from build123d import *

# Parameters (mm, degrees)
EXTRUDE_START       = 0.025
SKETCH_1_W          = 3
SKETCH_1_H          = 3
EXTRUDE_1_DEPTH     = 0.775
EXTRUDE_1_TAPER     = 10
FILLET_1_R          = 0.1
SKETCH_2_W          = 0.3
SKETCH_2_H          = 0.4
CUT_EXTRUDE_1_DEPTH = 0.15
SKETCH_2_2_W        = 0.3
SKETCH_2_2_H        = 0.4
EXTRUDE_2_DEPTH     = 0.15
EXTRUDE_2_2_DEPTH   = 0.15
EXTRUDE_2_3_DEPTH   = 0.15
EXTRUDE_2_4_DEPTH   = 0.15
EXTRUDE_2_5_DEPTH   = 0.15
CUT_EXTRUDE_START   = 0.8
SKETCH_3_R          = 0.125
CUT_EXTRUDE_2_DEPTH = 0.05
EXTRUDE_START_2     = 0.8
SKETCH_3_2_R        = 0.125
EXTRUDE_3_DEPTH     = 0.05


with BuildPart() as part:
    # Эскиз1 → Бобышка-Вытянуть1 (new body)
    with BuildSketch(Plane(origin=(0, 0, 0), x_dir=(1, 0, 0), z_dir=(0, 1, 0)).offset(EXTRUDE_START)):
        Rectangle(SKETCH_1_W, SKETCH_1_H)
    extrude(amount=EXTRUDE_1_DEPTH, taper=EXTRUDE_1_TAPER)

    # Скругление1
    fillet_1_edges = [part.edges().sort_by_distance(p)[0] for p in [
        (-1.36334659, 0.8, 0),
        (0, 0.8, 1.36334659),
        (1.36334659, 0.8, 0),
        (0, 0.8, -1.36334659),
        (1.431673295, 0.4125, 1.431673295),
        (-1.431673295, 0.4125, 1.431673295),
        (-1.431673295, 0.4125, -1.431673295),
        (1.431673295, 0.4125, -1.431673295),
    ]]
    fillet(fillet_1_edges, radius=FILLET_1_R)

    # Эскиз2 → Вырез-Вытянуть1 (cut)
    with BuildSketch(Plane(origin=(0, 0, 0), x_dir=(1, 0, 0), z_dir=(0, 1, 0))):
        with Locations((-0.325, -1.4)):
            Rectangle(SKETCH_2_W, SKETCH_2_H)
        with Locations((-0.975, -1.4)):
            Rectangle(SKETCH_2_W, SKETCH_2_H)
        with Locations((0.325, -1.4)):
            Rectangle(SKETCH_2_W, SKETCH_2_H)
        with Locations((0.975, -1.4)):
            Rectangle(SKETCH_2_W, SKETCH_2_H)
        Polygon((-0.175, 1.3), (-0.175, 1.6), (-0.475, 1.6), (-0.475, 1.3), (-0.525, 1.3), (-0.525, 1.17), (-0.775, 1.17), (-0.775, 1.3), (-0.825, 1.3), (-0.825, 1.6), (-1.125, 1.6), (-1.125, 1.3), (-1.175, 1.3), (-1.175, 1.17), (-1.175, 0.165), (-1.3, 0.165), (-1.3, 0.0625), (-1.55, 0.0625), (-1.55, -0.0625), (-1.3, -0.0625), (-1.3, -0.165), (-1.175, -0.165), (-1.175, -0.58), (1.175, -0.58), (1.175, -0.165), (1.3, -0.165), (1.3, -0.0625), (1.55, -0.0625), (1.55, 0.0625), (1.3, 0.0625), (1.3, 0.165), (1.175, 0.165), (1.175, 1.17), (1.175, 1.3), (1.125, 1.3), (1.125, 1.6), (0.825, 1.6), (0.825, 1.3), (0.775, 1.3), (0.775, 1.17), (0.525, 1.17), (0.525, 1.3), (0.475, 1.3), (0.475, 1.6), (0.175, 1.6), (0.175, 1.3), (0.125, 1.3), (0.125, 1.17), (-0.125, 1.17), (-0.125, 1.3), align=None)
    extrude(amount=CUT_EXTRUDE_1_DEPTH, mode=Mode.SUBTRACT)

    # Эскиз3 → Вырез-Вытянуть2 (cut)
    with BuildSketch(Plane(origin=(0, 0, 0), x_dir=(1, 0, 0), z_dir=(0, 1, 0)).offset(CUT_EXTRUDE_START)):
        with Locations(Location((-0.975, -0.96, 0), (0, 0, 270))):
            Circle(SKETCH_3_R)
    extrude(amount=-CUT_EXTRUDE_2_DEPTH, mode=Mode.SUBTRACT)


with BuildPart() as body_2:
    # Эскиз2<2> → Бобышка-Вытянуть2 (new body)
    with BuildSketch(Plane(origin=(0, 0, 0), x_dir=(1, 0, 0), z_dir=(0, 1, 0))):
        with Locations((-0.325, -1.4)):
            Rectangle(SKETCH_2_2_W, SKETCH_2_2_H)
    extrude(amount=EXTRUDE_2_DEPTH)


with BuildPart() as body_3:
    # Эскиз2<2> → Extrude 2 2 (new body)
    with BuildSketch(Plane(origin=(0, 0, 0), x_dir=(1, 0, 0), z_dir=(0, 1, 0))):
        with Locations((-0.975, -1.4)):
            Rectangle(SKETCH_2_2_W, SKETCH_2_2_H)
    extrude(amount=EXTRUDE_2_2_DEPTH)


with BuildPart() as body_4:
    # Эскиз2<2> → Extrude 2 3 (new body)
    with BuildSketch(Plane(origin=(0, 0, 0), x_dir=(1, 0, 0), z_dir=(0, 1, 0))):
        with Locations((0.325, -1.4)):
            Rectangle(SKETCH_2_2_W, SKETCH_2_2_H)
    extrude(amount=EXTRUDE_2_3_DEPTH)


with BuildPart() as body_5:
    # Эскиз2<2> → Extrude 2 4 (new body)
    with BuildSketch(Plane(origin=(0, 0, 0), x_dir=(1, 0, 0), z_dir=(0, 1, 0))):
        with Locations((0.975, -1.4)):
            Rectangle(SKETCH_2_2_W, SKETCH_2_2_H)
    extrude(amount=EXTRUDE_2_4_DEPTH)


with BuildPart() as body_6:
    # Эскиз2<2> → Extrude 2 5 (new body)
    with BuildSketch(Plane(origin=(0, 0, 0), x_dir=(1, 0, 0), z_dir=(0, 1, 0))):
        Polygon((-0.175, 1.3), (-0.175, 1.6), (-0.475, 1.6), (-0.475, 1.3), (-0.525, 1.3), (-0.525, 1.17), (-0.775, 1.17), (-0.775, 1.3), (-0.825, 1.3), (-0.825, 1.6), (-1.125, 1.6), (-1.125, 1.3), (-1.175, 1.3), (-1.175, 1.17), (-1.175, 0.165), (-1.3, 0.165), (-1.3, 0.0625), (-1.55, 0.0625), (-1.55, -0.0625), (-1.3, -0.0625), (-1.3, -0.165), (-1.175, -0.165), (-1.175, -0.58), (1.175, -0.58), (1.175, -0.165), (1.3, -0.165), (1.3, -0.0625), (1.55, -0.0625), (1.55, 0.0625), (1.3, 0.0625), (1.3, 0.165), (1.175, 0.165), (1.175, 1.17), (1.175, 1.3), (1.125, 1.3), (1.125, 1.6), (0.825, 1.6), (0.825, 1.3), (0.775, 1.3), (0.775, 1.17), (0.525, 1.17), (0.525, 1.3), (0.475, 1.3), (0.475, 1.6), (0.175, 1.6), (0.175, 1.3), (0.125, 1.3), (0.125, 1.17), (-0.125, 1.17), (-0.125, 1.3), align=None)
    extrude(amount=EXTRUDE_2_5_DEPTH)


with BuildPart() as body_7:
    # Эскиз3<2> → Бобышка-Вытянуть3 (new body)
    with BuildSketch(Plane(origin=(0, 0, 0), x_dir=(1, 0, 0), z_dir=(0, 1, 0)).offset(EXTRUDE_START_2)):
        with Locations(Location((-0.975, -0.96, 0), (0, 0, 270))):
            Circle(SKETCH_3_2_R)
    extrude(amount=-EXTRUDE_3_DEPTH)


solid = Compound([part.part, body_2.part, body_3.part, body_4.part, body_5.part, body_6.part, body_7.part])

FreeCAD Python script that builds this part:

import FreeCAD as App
import Part
import Sketcher
from FreeCAD import Vector
Q = App.Units.Quantity


def edges_at(feature, points):
    """Names of the edges that pass closest to the given points."""
    edges = feature.Shape.Edges
    near = lambda p: min(range(len(edges)), key=lambda i: edges[i].distToShape(Part.Vertex(*p))[0])
    return sorted({f"Edge{near(p) + 1}" for p in points})

doc = App.newDocument("Part")
params = doc.addObject("Spreadsheet::Sheet", "Params")
for row, (alias, value) in enumerate([
    ("sketch1_width", "3 mm"),
    ("pad1_length", "0.775 mm"),
    ("pad1_taper", "-10 deg"),
    ("fillet_radius", "0.1 mm"),
    ("sketch2_width", "0.3 mm"),
    ("sketch2_height", "0.4 mm"),
    ("sketch2_width2", "0.05 mm"),
    ("sketch2_width3", "0.25 mm"),
    ("sketch2_height2", "0.13 mm"),
    ("pocket1_length", "0.15 mm"),
    ("sketch3_diameter", "0.25 mm"),
    ("pocket2_length", "0.05 mm"),
    ("sketch4_width", "0.3 mm"),
    ("sketch4_height", "0.4 mm"),
    ("pad2_length", "0.15 mm"),
    ("sketch5_width", "0.3 mm"),
    ("sketch5_height", "0.4 mm"),
    ("pad3_length", "0.15 mm"),
    ("sketch6_width", "0.3 mm"),
    ("sketch6_height", "0.4 mm"),
    ("pad4_length", "0.15 mm"),
    ("sketch7_width", "0.3 mm"),
    ("sketch7_height", "0.4 mm"),
    ("pad5_length", "0.15 mm"),
    ("sketch8_width", "0.3 mm"),
    ("sketch8_width2", "0.05 mm"),
    ("sketch8_height", "0.13 mm"),
    ("pad6_length", "0.15 mm"),
    ("sketch9_diameter", "0.25 mm"),
    ("pad7_length", "0.05 mm"),
], start=1):
    params.set(f"A{row}", alias)
    params.set(f"B{row}", "=" + value)
    params.setAlias(f"B{row}", alias)

body = doc.addObject("PartDesign::Body", "Body")

# Sketch on XZ plane
sketch1 = doc.addObject("Sketcher::SketchObject", "Sketch")
body.addObject(sketch1)
sketch1.AttachmentSupport = (doc.XZ_Plane, [""])
sketch1.MapMode = "FlatFace"
sketch1.AttachmentOffset = App.Placement(Vector(0, 0, -0.025), App.Rotation())
sketch1.addGeometry(Part.LineSegment(Vector(-1.5, -1.5, 0), Vector(-1.5, 1.5, 0)), False)
sketch1.addGeometry(Part.LineSegment(Vector(-1.5, 1.5, 0), Vector(1.5, 1.5, 0)), False)
sketch1.addGeometry(Part.LineSegment(Vector(1.5, 1.5, 0), Vector(1.5, -1.5, 0)), False)
sketch1.addGeometry(Part.LineSegment(Vector(1.5, -1.5, 0), Vector(-1.5, -1.5, 0)), False)
sketch1.addConstraint(Sketcher.Constraint("Coincident", 0, 2, 1, 1))
sketch1.addConstraint(Sketcher.Constraint("Coincident", 1, 2, 2, 1))
sketch1.addConstraint(Sketcher.Constraint("Coincident", 2, 2, 3, 1))
sketch1.addConstraint(Sketcher.Constraint("Coincident", 3, 2, 0, 1))
sketch1.addConstraint(Sketcher.Constraint("Vertical", 0))
sketch1.addConstraint(Sketcher.Constraint("Horizontal", 1))
sketch1.addConstraint(Sketcher.Constraint("Vertical", 2))
sketch1.addConstraint(Sketcher.Constraint("Horizontal", 3))
sketch1.addConstraint(Sketcher.Constraint("Symmetric", 0, 2, 2, 2, -1, 1))
sketch1.addConstraint(Sketcher.Constraint("Equal", 3, 0))
sketch1.addConstraint(Sketcher.Constraint("DistanceX", 1, 1, 1, 2, Q("3 mm")))
sketch1.setExpression("Constraints[10]", "Params.sketch1_width")
pad1 = doc.addObject("PartDesign::Pad", "Pad")
body.addObject(pad1)
pad1.Profile = sketch1
pad1.setExpression("Length", "Params.pad1_length")
pad1.Reversed = True
pad1.setExpression("TaperAngle", "Params.pad1_taper")
doc.recompute()

fillet = doc.addObject("PartDesign::Fillet", "Fillet")
body.addObject(fillet)
fillet.Base = (pad1, edges_at(pad1, [
    (-1.363, 0.8, 0),
    (0, 0.8, 1.363),
    (1.363, 0.8, 0),
    (0, 0.8, -1.363),
    (1.432, 0.412, 1.432),
    (-1.432, 0.412, 1.432),
    (-1.432, 0.412, -1.432),
    (1.432, 0.412, -1.432),
]))
fillet.setExpression("Radius", "Params.fillet_radius")

# Sketch on XZ plane
sketch2 = doc.addObject("Sketcher::SketchObject", "Sketch001")
body.addObject(sketch2)
sketch2.AttachmentSupport = (doc.XZ_Plane, [""])
sketch2.MapMode = "FlatFace"
sketch2.addGeometry(Part.LineSegment(Vector(-0.475, 1.2, 0), Vector(-0.475, 1.6, 0)), False)
sketch2.addGeometry(Part.LineSegment(Vector(-0.475, 1.6, 0), Vector(-0.175, 1.6, 0)), False)
sketch2.addGeometry(Part.LineSegment(Vector(-0.175, 1.6, 0), Vector(-0.175, 1.2, 0)), False)
sketch2.addGeometry(Part.LineSegment(Vector(-0.175, 1.2, 0), Vector(-0.475, 1.2, 0)), False)
sketch2.addGeometry(Part.LineSegment(Vector(-1.125, 1.2, 0), Vector(-1.125, 1.6, 0)), False)
sketch2.addGeometry(Part.LineSegment(Vector(-1.125, 1.6, 0), Vector(-0.825, 1.6, 0)), False)
sketch2.addGeometry(Part.LineSegment(Vector(-0.825, 1.6, 0), Vector(-0.825, 1.2, 0)), False)
sketch2.addGeometry(Part.LineSegment(Vector(-0.825, 1.2, 0), Vector(-1.125, 1.2, 0)), False)
sketch2.addGeometry(Part.LineSegment(Vector(0.175, 1.2, 0), Vector(0.175, 1.6, 0)), False)
sketch2.addGeometry(Part.LineSegment(Vector(0.175, 1.6, 0), Vector(0.475, 1.6, 0)), False)
sketch2.addGeometry(Part.LineSegment(Vector(0.475, 1.6, 0), Vector(0.475, 1.2, 0)), False)
sketch2.addGeometry(Part.LineSegment(Vector(0.475, 1.2, 0), Vector(0.175, 1.2, 0)), False)
sketch2.addGeometry(Part.LineSegment(Vector(0.825, 1.2, 0), Vector(0.825, 1.6, 0)), False)
sketch2.addGeometry(Part.LineSegment(Vector(0.825, 1.6, 0), Vector(1.125, 1.6, 0)), False)
sketch2.addGeometry(Part.LineSegment(Vector(1.125, 1.6, 0), Vector(1.125, 1.2, 0)), False)
sketch2.addGeometry(Part.LineSegment(Vector(1.125, 1.2, 0), Vector(0.825, 1.2, 0)), False)
sketch2.addGeometry(Part.LineSegment(Vector(-0.175, -1.3, 0), Vector(-0.175, -1.6, 0)), False)
sketch2.addGeometry(Part.LineSegment(Vector(-0.175, -1.6, 0), Vector(-0.475, -1.6, 0)), False)
sketch2.addGeometry(Part.LineSegment(Vector(-0.475, -1.6, 0), Vector(-0.475, -1.3, 0)), False)
sketch2.addGeometry(Part.LineSegment(Vector(-0.475, -1.3, 0), Vector(-0.525, -1.3, 0)), False)
sketch2.addGeometry(Part.LineSegment(Vector(-0.525, -1.3, 0), Vector(-0.525, -1.17, 0)), False)
sketch2.addGeometry(Part.LineSegment(Vector(-0.525, -1.17, 0), Vector(-0.775, -1.17, 0)), False)
sketch2.addGeometry(Part.LineSegment(Vector(-0.775, -1.17, 0), Vector(-0.775, -1.3, 0)), False)
sketch2.addGeometry(Part.LineSegment(Vector(-0.775, -1.3, 0), Vector(-0.825, -1.3, 0)), False)
sketch2.addGeometry(Part.LineSegment(Vector(-0.825, -1.3, 0), Vector(-0.825, -1.6, 0)), False)
sketch2.addGeometry(Part.LineSegment(Vector(-0.825, -1.6, 0), Vector(-1.125, -1.6, 0)), False)
sketch2.addGeometry(Part.LineSegment(Vector(-1.125, -1.6, 0), Vector(-1.125, -1.3, 0)), False)
sketch2.addGeometry(Part.LineSegment(Vector(-1.125, -1.3, 0), Vector(-1.175, -1.3, 0)), False)
sketch2.addGeometry(Part.LineSegment(Vector(-1.175, -1.3, 0), Vector(-1.175, -0.165, 0)), False)
sketch2.addGeometry(Part.LineSegment(Vector(-1.175, -0.165, 0), Vector(-1.3, -0.165, 0)), False)
sketch2.addGeometry(Part.LineSegment(Vector(-1.3, -0.165, 0), Vector(-1.3, -0.062, 0)), False)
sketch2.addGeometry(Part.LineSegment(Vector(-1.3, -0.062, 0), Vector(-1.55, -0.062, 0)), False)
sketch2.addGeometry(Part.LineSegment(Vector(-1.55, -0.062, 0), Vector(-1.55, 0.062, 0)), False)
sketch2.addGeometry(Part.LineSegment(Vector(-1.55, 0.062, 0), Vector(-1.3, 0.062, 0)), False)
sketch2.addGeometry(Part.LineSegment(Vector(-1.3, 0.062, 0), Vector(-1.3, 0.165, 0)), False)
sketch2.addGeometry(Part.LineSegment(Vector(-1.3, 0.165, 0), Vector(-1.175, 0.165, 0)), False)
sketch2.addGeometry(Part.LineSegment(Vector(-1.175, 0.165, 0), Vector(-1.175, 0.58, 0)), False)
sketch2.addGeometry(Part.LineSegment(Vector(-1.175, 0.58, 0), Vector(1.175, 0.58, 0)), False)
sketch2.addGeometry(Part.LineSegment(Vector(1.175, 0.58, 0), Vector(1.175, 0.165, 0)), False)
sketch2.addGeometry(Part.LineSegment(Vector(1.175, 0.165, 0), Vector(1.3, 0.165, 0)), False)
sketch2.addGeometry(Part.LineSegment(Vector(1.3, 0.165, 0), Vector(1.3, 0.062, 0)), False)
sketch2.addGeometry(Part.LineSegment(Vector(1.3, 0.062, 0), Vector(1.55, 0.062, 0)), False)
sketch2.addGeometry(Part.LineSegment(Vector(1.55, 0.062, 0), Vector(1.55, -0.062, 0)), False)
sketch2.addGeometry(Part.LineSegment(Vector(1.55, -0.062, 0), Vector(1.3, -0.062, 0)), False)
sketch2.addGeometry(Part.LineSegment(Vector(1.3, -0.062, 0), Vector(1.3, -0.165, 0)), False)
sketch2.addGeometry(Part.LineSegment(Vector(1.3, -0.165, 0), Vector(1.175, -0.165, 0)), False)
sketch2.addGeometry(Part.LineSegment(Vector(1.175, -0.165, 0), Vector(1.175, -1.3, 0)), False)
sketch2.addGeometry(Part.LineSegment(Vector(1.175, -1.3, 0), Vector(1.125, -1.3, 0)), False)
sketch2.addGeometry(Part.LineSegment(Vector(1.125, -1.3, 0), Vector(1.125, -1.6, 0)), False)
sketch2.addGeometry(Part.LineSegment(Vector(1.125, -1.6, 0), Vector(0.825, -1.6, 0)), False)
sketch2.addGeometry(Part.LineSegment(Vector(0.825, -1.6, 0), Vector(0.825, -1.3, 0)), False)
sketch2.addGeometry(Part.LineSegment(Vector(0.825, -1.3, 0), Vector(0.775, -1.3, 0)), False)
sketch2.addGeometry(Part.LineSegment(Vector(0.775, -1.3, 0), Vector(0.775, -1.17, 0)), False)
sketch2.addGeometry(Part.LineSegment(Vector(0.775, -1.17, 0), Vector(0.525, -1.17, 0)), False)
sketch2.addGeometry(Part.LineSegment(Vector(0.525, -1.17, 0), Vector(0.525, -1.3, 0)), False)
sketch2.addGeometry(Part.LineSegment(Vector(0.525, -1.3, 0), Vector(0.475, -1.3, 0)), False)
sketch2.addGeometry(Part.LineSegment(Vector(0.475, -1.3, 0), Vector(0.475, -1.6, 0)), False)
sketch2.addGeometry(Part.LineSegment(Vector(0.475, -1.6, 0), Vector(0.175, -1.6, 0)), False)
sketch2.addGeometry(Part.LineSegment(Vector(0.175, -1.6, 0), Vector(0.175, -1.3, 0)), False)
sketch2.addGeometry(Part.LineSegment(Vector(0.175, -1.3, 0), Vector(0.125, -1.3, 0)), False)
sketch2.addGeometry(Part.LineSegment(Vector(0.125, -1.3, 0), Vector(0.125, -1.17, 0)), False)
sketch2.addGeometry(Part.LineSegment(Vector(0.125, -1.17, 0), Vector(-0.125, -1.17, 0)), False)
sketch2.addGeometry(Part.LineSegment(Vector(-0.125, -1.17, 0), Vector(-0.125, -1.3, 0)), False)
sketch2.addGeometry(Part.LineSegment(Vector(-0.125, -1.3, 0), Vector(-0.175, -1.3, 0)), False)
sketch2.addConstraint(Sketcher.Constraint("Coincident", 0, 2, 1, 1))
sketch2.addConstraint(Sketcher.Constraint("Coincident", 1, 2, 2, 1))
sketch2.addConstraint(Sketcher.Constraint("Coincident", 2, 2, 3, 1))
sketch2.addConstraint(Sketcher.Constraint("Coincident", 3, 2, 0, 1))
sketch2.addConstraint(Sketcher.Constraint("Coincident", 4, 2, 5, 1))
sketch2.addConstraint(Sketcher.Constraint("Coincident", 5, 2, 6, 1))
sketch2.addConstraint(Sketcher.Constraint("Coincident", 6, 2, 7, 1))
sketch2.addConstraint(Sketcher.Constraint("Coincident", 7, 2, 4, 1))
sketch2.addConstraint(Sketcher.Constraint("Coincident", 8, 2, 9, 1))
sketch2.addConstraint(Sketcher.Constraint("Coincident", 9, 2, 10, 1))
sketch2.addConstraint(Sketcher.Constraint("Coincident", 10, 2, 11, 1))
sketch2.addConstraint(Sketcher.Constraint("Coincident", 11, 2, 8, 1))
sketch2.addConstraint(Sketcher.Constraint("Coincident", 12, 2, 13, 1))
sketch2.addConstraint(Sketcher.Constraint("Coincident", 13, 2, 14, 1))
sketch2.addConstraint(Sketcher.Constraint("Coincident", 14, 2, 15, 1))
sketch2.addConstraint(Sketcher.Constraint("Coincident", 15, 2, 12, 1))
sketch2.addConstraint(Sketcher.Constraint("Coincident", 16, 2, 17, 1))
sketch2.addConstraint(Sketcher.Constraint("Coincident", 17, 2, 18, 1))
sketch2.addConstraint(Sketcher.Constraint("Coincident", 18, 2, 19, 1))
sketch2.addConstraint(Sketcher.Constraint("Coincident", 19, 2, 20, 1))
sketch2.addConstraint(Sketcher.Constraint("Coincident", 20, 2, 21, 1))
sketch2.addConstraint(Sketcher.Constraint("Coincident", 21, 2, 22, 1))
sketch2.addConstraint(Sketcher.Constraint("Coincident", 22, 2, 23, 1))
sketch2.addConstraint(Sketcher.Constraint("Coincident", 23, 2, 24, 1))
sketch2.addConstraint(Sketcher.Constraint("Coincident", 24, 2, 25, 1))
sketch2.addConstraint(Sketcher.Constraint("Coincident", 25, 2, 26, 1))
sketch2.addConstraint(Sketcher.Constraint("Coincident", 26, 2, 27, 1))
sketch2.addConstraint(Sketcher.Constraint("Coincident", 27, 2, 28, 1))
sketch2.addConstraint(Sketcher.Constraint("Coincident", 28, 2, 29, 1))
sketch2.addConstraint(Sketcher.Constraint("Coincident", 29, 2, 30, 1))
sketch2.addConstraint(Sketcher.Constraint("Coincident", 30, 2, 31, 1))
sketch2.addConstraint(Sketcher.Constraint("Coincident", 31, 2, 32, 1))
sketch2.addConstraint(Sketcher.Constraint("Coincident", 32, 2, 33, 1))
sketch2.addConstraint(Sketcher.Constraint("Coincident", 33, 2, 34, 1))
sketch2.addConstraint(Sketcher.Constraint("Coincident", 34, 2, 35, 1))
sketch2.addConstraint(Sketcher.Constraint("Coincident", 35, 2, 36, 1))
sketch2.addConstraint(Sketcher.Constraint("Coincident", 36, 2, 37, 1))
sketch2.addConstraint(Sketcher.Constraint("Coincident", 37, 2, 38, 1))
sketch2.addConstraint(Sketcher.Constraint("Coincident", 38, 2, 39, 1))
sketch2.addConstraint(Sketcher.Constraint("Coincident", 39, 2, 40, 1))
sketch2.addConstraint(Sketcher.Constraint("Coincident", 40, 2, 41, 1))
sketch2.addConstraint(Sketcher.Constraint("Coincident", 41, 2, 42, 1))
sketch2.addConstraint(Sketcher.Constraint("Coincident", 42, 2, 43, 1))
sketch2.addConstraint(Sketcher.Constraint("Coincident", 43, 2, 44, 1))
sketch2.addConstraint(Sketcher.Constraint("Coincident", 44, 2, 45, 1))
sketch2.addConstraint(Sketcher.Constraint("Coincident", 45, 2, 46, 1))
sketch2.addConstraint(Sketcher.Constraint("Coincident", 46, 2, 47, 1))
sketch2.addConstraint(Sketcher.Constraint("Coincident", 47, 2, 48, 1))
sketch2.addConstraint(Sketcher.Constraint("Coincident", 48, 2, 49, 1))
sketch2.addConstraint(Sketcher.Constraint("Coincident", 49, 2, 50, 1))
sketch2.addConstraint(Sketcher.Constraint("Coincident", 50, 2, 51, 1))
sketch2.addConstraint(Sketcher.Constraint("Coincident", 51, 2, 52, 1))
sketch2.addConstraint(Sketcher.Constraint("Coincident", 52, 2, 53, 1))
sketch2.addConstraint(Sketcher.Constraint("Coincident", 53, 2, 54, 1))
sketch2.addConstraint(Sketcher.Constraint("Coincident", 54, 2, 55, 1))
sketch2.addConstraint(Sketcher.Constraint("Coincident", 55, 2, 56, 1))
sketch2.addConstraint(Sketcher.Constraint("Coincident", 56, 2, 57, 1))
sketch2.addConstraint(Sketcher.Constraint("Coincident", 57, 2, 58, 1))
sketch2.addConstraint(Sketcher.Constraint("Coincident", 58, 2, 59, 1))
sketch2.addConstraint(Sketcher.Constraint("Coincident", 59, 2, 60, 1))
sketch2.addConstraint(Sketcher.Constraint("Coincident", 60, 2, 61, 1))
sketch2.addConstraint(Sketcher.Constraint("Coincident", 61, 2, 62, 1))
sketch2.addConstraint(Sketcher.Constraint("Coincident", 62, 2, 63, 1))
sketch2.addConstraint(Sketcher.Constraint("Coincident", 63, 2, 16, 1))
sketch2.addConstraint(Sketcher.Constraint("Vertical", 0))
sketch2.addConstraint(Sketcher.Constraint("Horizontal", 1))
sketch2.addConstraint(Sketcher.Constraint("Vertical", 2))
sketch2.addConstraint(Sketcher.Constraint("Horizontal", 3))
sketch2.addConstraint(Sketcher.Constraint("Vertical", 4))
sketch2.addConstraint(Sketcher.Constraint("Horizontal", 5))
sketch2.addConstraint(Sketcher.Constraint("Vertical", 6))
sketch2.addConstraint(Sketcher.Constraint("Horizontal", 7))
sketch2.addConstraint(Sketcher.Constraint("Vertical", 8))
sketch2.addConstraint(Sketcher.Constraint("Horizontal", 9))
sketch2.addConstraint(Sketcher.Constraint("Vertical", 10))
sketch2.addConstraint(Sketcher.Constraint("Horizontal", 11))
sketch2.addConstraint(Sketcher.Constraint("Vertical", 12))
sketch2.addConstraint(Sketcher.Constraint("Horizontal", 13))
sketch2.addConstraint(Sketcher.Constraint("Vertical", 14))
sketch2.addConstraint(Sketcher.Constraint("Horizontal", 15))
sketch2.addConstraint(Sketcher.Constraint("Vertical", 16))
sketch2.addConstraint(Sketcher.Constraint("Horizontal", 17))
sketch2.addConstraint(Sketcher.Constraint("Vertical", 18))
sketch2.addConstraint(Sketcher.Constraint("Horizontal", 19))
sketch2.addConstraint(Sketcher.Constraint("Vertical", 20))
sketch2.addConstraint(Sketcher.Constraint("Horizontal", 21))
sketch2.addConstraint(Sketcher.Constraint("Vertical", 22))
sketch2.addConstraint(Sketcher.Constraint("Horizontal", 23))
sketch2.addConstraint(Sketcher.Constraint("Vertical", 24))
sketch2.addConstraint(Sketcher.Constraint("Horizontal", 25))
sketch2.addConstraint(Sketcher.Constraint("Vertical", 26))
sketch2.addConstraint(Sketcher.Constraint("Horizontal", 27))
sketch2.addConstraint(Sketcher.Constraint("Vertical", 28))
sketch2.addConstraint(Sketcher.Constraint("Horizontal", 29))
sketch2.addConstraint(Sketcher.Constraint("Vertical", 30))
sketch2.addConstraint(Sketcher.Constraint("Horizontal", 31))
sketch2.addConstraint(Sketcher.Constraint("Vertical", 32))
sketch2.addConstraint(Sketcher.Constraint("Horizontal", 33))
sketch2.addConstraint(Sketcher.Constraint("Vertical", 34))
sketch2.addConstraint(Sketcher.Constraint("Horizontal", 35))
sketch2.addConstraint(Sketcher.Constraint("Vertical", 36))
sketch2.addConstraint(Sketcher.Constraint("Horizontal", 37))
sketch2.addConstraint(Sketcher.Constraint("Vertical", 38))
sketch2.addConstraint(Sketcher.Constraint("Horizontal", 39))
sketch2.addConstraint(Sketcher.Constraint("Vertical", 40))
sketch2.addConstraint(Sketcher.Constraint("Horizontal", 41))
sketch2.addConstraint(Sketcher.Constraint("Vertical", 42))
sketch2.addConstraint(Sketcher.Constraint("Horizontal", 43))
sketch2.addConstraint(Sketcher.Constraint("Vertical", 44))
sketch2.addConstraint(Sketcher.Constraint("Horizontal", 45))
sketch2.addConstraint(Sketcher.Constraint("Vertical", 46))
sketch2.addConstraint(Sketcher.Constraint("Horizontal", 47))
sketch2.addConstraint(Sketcher.Constraint("Vertical", 48))
sketch2.addConstraint(Sketcher.Constraint("Horizontal", 49))
sketch2.addConstraint(Sketcher.Constraint("Vertical", 50))
sketch2.addConstraint(Sketcher.Constraint("Horizontal", 51))
sketch2.addConstraint(Sketcher.Constraint("Vertical", 52))
sketch2.addConstraint(Sketcher.Constraint("Horizontal", 53))
sketch2.addConstraint(Sketcher.Constraint("Vertical", 54))
sketch2.addConstraint(Sketcher.Constraint("Horizontal", 55))
sketch2.addConstraint(Sketcher.Constraint("Vertical", 56))
sketch2.addConstraint(Sketcher.Constraint("Horizontal", 57))
sketch2.addConstraint(Sketcher.Constraint("Vertical", 58))
sketch2.addConstraint(Sketcher.Constraint("Horizontal", 59))
sketch2.addConstraint(Sketcher.Constraint("Vertical", 60))
sketch2.addConstraint(Sketcher.Constraint("Horizontal", 61))
sketch2.addConstraint(Sketcher.Constraint("Vertical", 62))
sketch2.addConstraint(Sketcher.Constraint("Horizontal", 63))
sketch2.addConstraint(Sketcher.Constraint("Symmetric", 8, 2, 16, 2, -1, 1))
sketch2.addConstraint(Sketcher.Constraint("Symmetric", 12, 2, 24, 2, -1, 1))
sketch2.addConstraint(Sketcher.Constraint("Symmetric", 28, 2, 38, 2, -1, 1))
sketch2.addConstraint(Sketcher.Constraint("Symmetric", 30, 2, 40, 2, -1, 1))
sketch2.addConstraint(Sketcher.Constraint("Symmetric", 32, 2, 42, 2, -1, 1))
sketch2.addConstraint(Sketcher.Constraint("Symmetric", 34, 2, 44, 2, -1, 1))
sketch2.addConstraint(Sketcher.Constraint("Symmetric", 4, 2, 48, 2, -1, 1))
sketch2.addConstraint(Sketcher.Constraint("Symmetric", 0, 2, 56, 2, -1, 1))
sketch2.addConstraint(Sketcher.Constraint("Symmetric", 1, 2, 8, 2, -2))
sketch2.addConstraint(Sketcher.Constraint("Symmetric", 3, 2, 10, 2, -2))
sketch2.addConstraint(Sketcher.Constraint("Symmetric", 5, 2, 12, 2, -2))
sketch2.addConstraint(Sketcher.Constraint("Symmetric", 7, 2, 14, 2, -2))
sketch2.addConstraint(Sketcher.Constraint("Symmetric", 35, 2, 38, 2, -2))
sketch2.addConstraint(Sketcher.Constraint("Symmetric", 33, 2, 40, 2, -2))
sketch2.addConstraint(Sketcher.Constraint("Symmetric", 27, 2, 46, 2, -2))
sketch2.addConstraint(Sketcher.Constraint("Symmetric", 23, 2, 50, 2, -2))
sketch2.addConstraint(Sketcher.Constraint("Symmetric", 21, 2, 52, 2, -2))
sketch2.addConstraint(Sketcher.Constraint("Symmetric", 19, 2, 54, 2, -2))
sketch2.addConstraint(Sketcher.Constraint("Symmetric", 59, 2, 62, 2, -2))
sketch2.addConstraint(Sketcher.Constraint("Horizontal", 1, 2, 4, 2))
sketch2.addConstraint(Sketcher.Constraint("Horizontal", 3, 2, 6, 2))
sketch2.addConstraint(Sketcher.Constraint("Horizontal", 19, 2, 22, 2))
sketch2.addConstraint(Sketcher.Constraint("Horizontal", 23, 2, 26, 2))
sketch2.addConstraint(Sketcher.Constraint("Horizontal", 55, 2, 58, 2))
sketch2.addConstraint(Sketcher.Constraint("Horizontal", 53, 2, 60, 2))
sketch2.addConstraint(Sketcher.Constraint("Vertical", 3, 2, 17, 2))
sketch2.addConstraint(Sketcher.Constraint("Vertical", 7, 2, 25, 2))
sketch2.addConstraint(Sketcher.Constraint("Vertical", 11, 2, 57, 2))
sketch2.addConstraint(Sketcher.Constraint("Equal", 3, 5))
sketch2.addConstraint(Sketcher.Constraint("Equal", 19, 23))
sketch2.addConstraint(Sketcher.Constraint("Equal", 23, 27))
sketch2.addConstraint(Sketcher.Constraint("Equal", 21, 31))
sketch2.addConstraint(Sketcher.Constraint("Equal", 55, 59))
sketch2.addConstraint(Sketcher.Constraint("Equal", 53, 61))
sketch2.addConstraint(Sketcher.Constraint("Equal", 57, 16))
sketch2.addConstraint(Sketcher.Constraint("Equal", 45, 32))
sketch2.addConstraint(Sketcher.Constraint("DistanceX", 1, 1, 1, 2, Q("0.3 mm")))
sketch2.addConstraint(Sketcher.Constraint("DistanceY", 0, 1, 0, 2, Q("0.4 mm")))
sketch2.addConstraint(Sketcher.Constraint("DistanceX", 19, 2, 19, 1, Q("0.05 mm")))
sketch2.addConstraint(Sketcher.Constraint("DistanceX", 21, 2, 21, 1, Q("0.25 mm")))
sketch2.addConstraint(Sketcher.Constraint("DistanceY", 20, 1, 20, 2, Q("0.13 mm")))
sketch2.addConstraint(Sketcher.Constraint("DistanceY", -1, 1, 0, 2, Q("1.6 mm")))
sketch2.addConstraint(Sketcher.Constraint("DistanceX", 29, 2, -1, 1, Q("1.3 mm")))
sketch2.addConstraint(Sketcher.Constraint("DistanceY", 28, 1, 28, 2, Q("1.135 mm")))
sketch2.addConstraint(Sketcher.Constraint("DistanceY", 36, 1, 36, 2, Q("0.415 mm")))
sketch2.setExpression("Constraints[164]", "Params.sketch2_width")
sketch2.setExpression("Constraints[165]", "Params.sketch2_height")
sketch2.setExpression("Constraints[166]", "Params.sketch2_width2")
sketch2.setExpression("Constraints[167]", "Params.sketch2_width3")
sketch2.setExpression("Constraints[168]", "Params.sketch2_height2")
pocket1 = doc.addObject("PartDesign::Pocket", "Pocket")
body.addObject(pocket1)
pocket1.Profile = sketch2
pocket1.setExpression("Length", "Params.pocket1_length")

# Sketch on XZ plane
sketch3 = doc.addObject("Sketcher::SketchObject", "Sketch002")
body.addObject(sketch3)
sketch3.AttachmentSupport = (doc.XZ_Plane, [""])
sketch3.MapMode = "FlatFace"
sketch3.AttachmentOffset = App.Placement(Vector(0, 0, -0.8), App.Rotation())
sketch3.addGeometry(Part.Circle(Vector(-0.97, 0.96, 0), Vector(0, 0, 1), 0.12), False)
sketch3.addConstraint(Sketcher.Constraint("Diameter", 0, Q("0.25 mm")))
sketch3.addConstraint(Sketcher.Constraint("DistanceY", -1, 1, 0, 3, Q("0.96 mm")))
sketch3.addConstraint(Sketcher.Constraint("DistanceX", 0, 3, -1, 1, Q("0.975 mm")))
sketch3.setExpression("Constraints[0]", "Params.sketch3_diameter")
pocket2 = doc.addObject("PartDesign::Pocket", "Pocket001")
body.addObject(pocket2)
pocket2.Profile = sketch3
pocket2.setExpression("Length", "Params.pocket2_length")
pocket2.Reversed = True
body2 = doc.addObject("PartDesign::Body", "Body001")

# Sketch on XZ plane
sketch4 = doc.addObject("Sketcher::SketchObject", "Sketch003")
body2.addObject(sketch4)
sketch4.AttachmentSupport = (doc.getObject("XZ_Plane001"), [""])
sketch4.MapMode = "FlatFace"
sketch4.addGeometry(Part.LineSegment(Vector(-0.47, 1.2, 0), Vector(-0.47, 1.6, 0)), False)
sketch4.addGeometry(Part.LineSegment(Vector(-0.47, 1.6, 0), Vector(-0.17, 1.6, 0)), False)
sketch4.addGeometry(Part.LineSegment(Vector(-0.17, 1.6, 0), Vector(-0.17, 1.2, 0)), False)
sketch4.addGeometry(Part.LineSegment(Vector(-0.17, 1.2, 0), Vector(-0.47, 1.2, 0)), False)
sketch4.addConstraint(Sketcher.Constraint("Coincident", 0, 2, 1, 1))
sketch4.addConstraint(Sketcher.Constraint("Coincident", 1, 2, 2, 1))
sketch4.addConstraint(Sketcher.Constraint("Coincident", 2, 2, 3, 1))
sketch4.addConstraint(Sketcher.Constraint("Coincident", 3, 2, 0, 1))
sketch4.addConstraint(Sketcher.Constraint("Vertical", 0))
sketch4.addConstraint(Sketcher.Constraint("Horizontal", 1))
sketch4.addConstraint(Sketcher.Constraint("Vertical", 2))
sketch4.addConstraint(Sketcher.Constraint("Horizontal", 3))
sketch4.addConstraint(Sketcher.Constraint("DistanceX", 1, 1, 1, 2, Q("0.3 mm")))
sketch4.addConstraint(Sketcher.Constraint("DistanceY", 0, 1, 0, 2, Q("0.4 mm")))
sketch4.addConstraint(Sketcher.Constraint("DistanceY", -1, 1, 0, 2, Q("1.6 mm")))
sketch4.addConstraint(Sketcher.Constraint("DistanceX", 0, 2, -1, 1, Q("0.475 mm")))
sketch4.setExpression("Constraints[8]", "Params.sketch4_width")
sketch4.setExpression("Constraints[9]", "Params.sketch4_height")
pad2 = doc.addObject("PartDesign::Pad", "Pad001")
body2.addObject(pad2)
pad2.Profile = sketch4
pad2.setExpression("Length", "Params.pad2_length")
pad2.Reversed = True
body3 = doc.addObject("PartDesign::Body", "Body002")

# Sketch on XZ plane
sketch5 = doc.addObject("Sketcher::SketchObject", "Sketch004")
body3.addObject(sketch5)
sketch5.AttachmentSupport = (doc.getObject("XZ_Plane002"), [""])
sketch5.MapMode = "FlatFace"
sketch5.addGeometry(Part.LineSegment(Vector(-1.12, 1.2, 0), Vector(-1.12, 1.6, 0)), False)
sketch5.addGeometry(Part.LineSegment(Vector(-1.12, 1.6, 0), Vector(-0.82, 1.6, 0)), False)
sketch5.addGeometry(Part.LineSegment(Vector(-0.82, 1.6, 0), Vector(-0.82, 1.2, 0)), False)
sketch5.addGeometry(Part.LineSegment(Vector(-0.82, 1.2, 0), Vector(-1.12, 1.2, 0)), False)
sketch5.addConstraint(Sketcher.Constraint("Coincident", 0, 2, 1, 1))
sketch5.addConstraint(Sketcher.Constraint("Coincident", 1, 2, 2, 1))
sketch5.addConstraint(Sketcher.Constraint("Coincident", 2, 2, 3, 1))
sketch5.addConstraint(Sketcher.Constraint("Coincident", 3, 2, 0, 1))
sketch5.addConstraint(Sketcher.Constraint("Vertical", 0))
sketch5.addConstraint(Sketcher.Constraint("Horizontal", 1))
sketch5.addConstraint(Sketcher.Constraint("Vertical", 2))
sketch5.addConstraint(Sketcher.Constraint("Horizontal", 3))
sketch5.addConstraint(Sketcher.Constraint("DistanceX", 1, 1, 1, 2, Q("0.3 mm")))
sketch5.addConstraint(Sketcher.Constraint("DistanceY", 0, 1, 0, 2, Q("0.4 mm")))
sketch5.addConstraint(Sketcher.Constraint("DistanceY", -1, 1, 0, 2, Q("1.6 mm")))
sketch5.addConstraint(Sketcher.Constraint("DistanceX", 0, 2, -1, 1, Q("1.125 mm")))
sketch5.setExpression("Constraints[8]", "Params.sketch5_width")
sketch5.setExpression("Constraints[9]", "Params.sketch5_height")
pad3 = doc.addObject("PartDesign::Pad", "Pad002")
body3.addObject(pad3)
pad3.Profile = sketch5
pad3.setExpression("Length", "Params.pad3_length")
pad3.Reversed = True
body4 = doc.addObject("PartDesign::Body", "Body003")

# Sketch on XZ plane
sketch6 = doc.addObject("Sketcher::SketchObject", "Sketch005")
body4.addObject(sketch6)
sketch6.AttachmentSupport = (doc.getObject("XZ_Plane003"), [""])
sketch6.MapMode = "FlatFace"
sketch6.addGeometry(Part.LineSegment(Vector(0.17, 1.2, 0), Vector(0.17, 1.6, 0)), False)
sketch6.addGeometry(Part.LineSegment(Vector(0.17, 1.6, 0), Vector(0.47, 1.6, 0)), False)
sketch6.addGeometry(Part.LineSegment(Vector(0.47, 1.6, 0), Vector(0.47, 1.2, 0)), False)
sketch6.addGeometry(Part.LineSegment(Vector(0.47, 1.2, 0), Vector(0.17, 1.2, 0)), False)
sketch6.addConstraint(Sketcher.Constraint("Coincident", 0, 2, 1, 1))
sketch6.addConstraint(Sketcher.Constraint("Coincident", 1, 2, 2, 1))
sketch6.addConstraint(Sketcher.Constraint("Coincident", 2, 2, 3, 1))
sketch6.addConstraint(Sketcher.Constraint("Coincident", 3, 2, 0, 1))
sketch6.addConstraint(Sketcher.Constraint("Vertical", 0))
sketch6.addConstraint(Sketcher.Constraint("Horizontal", 1))
sketch6.addConstraint(Sketcher.Constraint("Vertical", 2))
sketch6.addConstraint(Sketcher.Constraint("Horizontal", 3))
sketch6.addConstraint(Sketcher.Constraint("DistanceX", 1, 1, 1, 2, Q("0.3 mm")))
sketch6.addConstraint(Sketcher.Constraint("DistanceY", 0, 1, 0, 2, Q("0.4 mm")))
sketch6.addConstraint(Sketcher.Constraint("DistanceY", -1, 1, 0, 2, Q("1.6 mm")))
sketch6.addConstraint(Sketcher.Constraint("DistanceX", -1, 1, 0, 2, Q("0.175 mm")))
sketch6.setExpression("Constraints[8]", "Params.sketch6_width")
sketch6.setExpression("Constraints[9]", "Params.sketch6_height")
pad4 = doc.addObject("PartDesign::Pad", "Pad003")
body4.addObject(pad4)
pad4.Profile = sketch6
pad4.setExpression("Length", "Params.pad4_length")
pad4.Reversed = True
body5 = doc.addObject("PartDesign::Body", "Body004")

# Sketch on XZ plane
sketch7 = doc.addObject("Sketcher::SketchObject", "Sketch006")
body5.addObject(sketch7)
sketch7.AttachmentSupport = (doc.getObject("XZ_Plane004"), [""])
sketch7.MapMode = "FlatFace"
sketch7.addGeometry(Part.LineSegment(Vector(0.82, 1.2, 0), Vector(0.82, 1.6, 0)), False)
sketch7.addGeometry(Part.LineSegment(Vector(0.82, 1.6, 0), Vector(1.12, 1.6, 0)), False)
sketch7.addGeometry(Part.LineSegment(Vector(1.12, 1.6, 0), Vector(1.12, 1.2, 0)), False)
sketch7.addGeometry(Part.LineSegment(Vector(1.12, 1.2, 0), Vector(0.82, 1.2, 0)), False)
sketch7.addConstraint(Sketcher.Constraint("Coincident", 0, 2, 1, 1))
sketch7.addConstraint(Sketcher.Constraint("Coincident", 1, 2, 2, 1))
sketch7.addConstraint(Sketcher.Constraint("Coincident", 2, 2, 3, 1))
sketch7.addConstraint(Sketcher.Constraint("Coincident", 3, 2, 0, 1))
sketch7.addConstraint(Sketcher.Constraint("Vertical", 0))
sketch7.addConstraint(Sketcher.Constraint("Horizontal", 1))
sketch7.addConstraint(Sketcher.Constraint("Vertical", 2))
sketch7.addConstraint(Sketcher.Constraint("Horizontal", 3))
sketch7.addConstraint(Sketcher.Constraint("DistanceX", 1, 1, 1, 2, Q("0.3 mm")))
sketch7.addConstraint(Sketcher.Constraint("DistanceY", 0, 1, 0, 2, Q("0.4 mm")))
sketch7.addConstraint(Sketcher.Constraint("DistanceY", -1, 1, 0, 2, Q("1.6 mm")))
sketch7.addConstraint(Sketcher.Constraint("DistanceX", -1, 1, 0, 2, Q("0.825 mm")))
sketch7.setExpression("Constraints[8]", "Params.sketch7_width")
sketch7.setExpression("Constraints[9]", "Params.sketch7_height")
pad5 = doc.addObject("PartDesign::Pad", "Pad004")
body5.addObject(pad5)
pad5.Profile = sketch7
pad5.setExpression("Length", "Params.pad5_length")
pad5.Reversed = True
body6 = doc.addObject("PartDesign::Body", "Body005")

# Sketch on XZ plane
sketch8 = doc.addObject("Sketcher::SketchObject", "Sketch007")
body6.addObject(sketch8)
sketch8.AttachmentSupport = (doc.getObject("XZ_Plane005"), [""])
sketch8.MapMode = "FlatFace"
sketch8.addGeometry(Part.LineSegment(Vector(-0.175, -1.3, 0), Vector(-0.175, -1.6, 0)), False)
sketch8.addGeometry(Part.LineSegment(Vector(-0.175, -1.6, 0), Vector(-0.475, -1.6, 0)), False)
sketch8.addGeometry(Part.LineSegment(Vector(-0.475, -1.6, 0), Vector(-0.475, -1.3, 0)), False)
sketch8.addGeometry(Part.LineSegment(Vector(-0.475, -1.3, 0), Vector(-0.525, -1.3, 0)), False)
sketch8.addGeometry(Part.LineSegment(Vector(-0.525, -1.3, 0), Vector(-0.525, -1.17, 0)), False)
sketch8.addGeometry(Part.LineSegment(Vector(-0.525, -1.17, 0), Vector(-0.775, -1.17, 0)), False)
sketch8.addGeometry(Part.LineSegment(Vector(-0.775, -1.17, 0), Vector(-0.775, -1.3, 0)), False)
sketch8.addGeometry(Part.LineSegment(Vector(-0.775, -1.3, 0), Vector(-0.825, -1.3, 0)), False)
sketch8.addGeometry(Part.LineSegment(Vector(-0.825, -1.3, 0), Vector(-0.825, -1.6, 0)), False)
sketch8.addGeometry(Part.LineSegment(Vector(-0.825, -1.6, 0), Vector(-1.125, -1.6, 0)), False)
sketch8.addGeometry(Part.LineSegment(Vector(-1.125, -1.6, 0), Vector(-1.125, -1.3, 0)), False)
sketch8.addGeometry(Part.LineSegment(Vector(-1.125, -1.3, 0), Vector(-1.175, -1.3, 0)), False)
sketch8.addGeometry(Part.LineSegment(Vector(-1.175, -1.3, 0), Vector(-1.175, -0.165, 0)), False)
sketch8.addGeometry(Part.LineSegment(Vector(-1.175, -0.165, 0), Vector(-1.3, -0.165, 0)), False)
sketch8.addGeometry(Part.LineSegment(Vector(-1.3, -0.165, 0), Vector(-1.3, -0.062, 0)), False)
sketch8.addGeometry(Part.LineSegment(Vector(-1.3, -0.062, 0), Vector(-1.55, -0.062, 0)), False)
sketch8.addGeometry(Part.LineSegment(Vector(-1.55, -0.062, 0), Vector(-1.55, 0.062, 0)), False)
sketch8.addGeometry(Part.LineSegment(Vector(-1.55, 0.062, 0), Vector(-1.3, 0.062, 0)), False)
sketch8.addGeometry(Part.LineSegment(Vector(-1.3, 0.062, 0), Vector(-1.3, 0.165, 0)), False)
sketch8.addGeometry(Part.LineSegment(Vector(-1.3, 0.165, 0), Vector(-1.175, 0.165, 0)), False)
sketch8.addGeometry(Part.LineSegment(Vector(-1.175, 0.165, 0), Vector(-1.175, 0.58, 0)), False)
sketch8.addGeometry(Part.LineSegment(Vector(-1.175, 0.58, 0), Vector(1.175, 0.58, 0)), False)
sketch8.addGeometry(Part.LineSegment(Vector(1.175, 0.58, 0), Vector(1.175, 0.165, 0)), False)
sketch8.addGeometry(Part.LineSegment(Vector(1.175, 0.165, 0), Vector(1.3, 0.165, 0)), False)
sketch8.addGeometry(Part.LineSegment(Vector(1.3, 0.165, 0), Vector(1.3, 0.062, 0)), False)
sketch8.addGeometry(Part.LineSegment(Vector(1.3, 0.062, 0), Vector(1.55, 0.062, 0)), False)
sketch8.addGeometry(Part.LineSegment(Vector(1.55, 0.062, 0), Vector(1.55, -0.062, 0)), False)
sketch8.addGeometry(Part.LineSegment(Vector(1.55, -0.062, 0), Vector(1.3, -0.062, 0)), False)
sketch8.addGeometry(Part.LineSegment(Vector(1.3, -0.062, 0), Vector(1.3, -0.165, 0)), False)
sketch8.addGeometry(Part.LineSegment(Vector(1.3, -0.165, 0), Vector(1.175, -0.165, 0)), False)
sketch8.addGeometry(Part.LineSegment(Vector(1.175, -0.165, 0), Vector(1.175, -1.3, 0)), False)
sketch8.addGeometry(Part.LineSegment(Vector(1.175, -1.3, 0), Vector(1.125, -1.3, 0)), False)
sketch8.addGeometry(Part.LineSegment(Vector(1.125, -1.3, 0), Vector(1.125, -1.6, 0)), False)
sketch8.addGeometry(Part.LineSegment(Vector(1.125, -1.6, 0), Vector(0.825, -1.6, 0)), False)
sketch8.addGeometry(Part.LineSegment(Vector(0.825, -1.6, 0), Vector(0.825, -1.3, 0)), False)
sketch8.addGeometry(Part.LineSegment(Vector(0.825, -1.3, 0), Vector(0.775, -1.3, 0)), False)
sketch8.addGeometry(Part.LineSegment(Vector(0.775, -1.3, 0), Vector(0.775, -1.17, 0)), False)
sketch8.addGeometry(Part.LineSegment(Vector(0.775, -1.17, 0), Vector(0.525, -1.17, 0)), False)
sketch8.addGeometry(Part.LineSegment(Vector(0.525, -1.17, 0), Vector(0.525, -1.3, 0)), False)
sketch8.addGeometry(Part.LineSegment(Vector(0.525, -1.3, 0), Vector(0.475, -1.3, 0)), False)
sketch8.addGeometry(Part.LineSegment(Vector(0.475, -1.3, 0), Vector(0.475, -1.6, 0)), False)
sketch8.addGeometry(Part.LineSegment(Vector(0.475, -1.6, 0), Vector(0.175, -1.6, 0)), False)
sketch8.addGeometry(Part.LineSegment(Vector(0.175, -1.6, 0), Vector(0.175, -1.3, 0)), False)
sketch8.addGeometry(Part.LineSegment(Vector(0.175, -1.3, 0), Vector(0.125, -1.3, 0)), False)
sketch8.addGeometry(Part.LineSegment(Vector(0.125, -1.3, 0), Vector(0.125, -1.17, 0)), False)
sketch8.addGeometry(Part.LineSegment(Vector(0.125, -1.17, 0), Vector(-0.125, -1.17, 0)), False)
sketch8.addGeometry(Part.LineSegment(Vector(-0.125, -1.17, 0), Vector(-0.125, -1.3, 0)), False)
sketch8.addGeometry(Part.LineSegment(Vector(-0.125, -1.3, 0), Vector(-0.175, -1.3, 0)), False)
sketch8.addConstraint(Sketcher.Constraint("Coincident", 0, 2, 1, 1))
sketch8.addConstraint(Sketcher.Constraint("Coincident", 1, 2, 2, 1))
sketch8.addConstraint(Sketcher.Constraint("Coincident", 2, 2, 3, 1))
sketch8.addConstraint(Sketcher.Constraint("Coincident", 3, 2, 4, 1))
sketch8.addConstraint(Sketcher.Constraint("Coincident", 4, 2, 5, 1))
sketch8.addConstraint(Sketcher.Constraint("Coincident", 5, 2, 6, 1))
sketch8.addConstraint(Sketcher.Constraint("Coincident", 6, 2, 7, 1))
sketch8.addConstraint(Sketcher.Constraint("Coincident", 7, 2, 8, 1))
sketch8.addConstraint(Sketcher.Constraint("Coincident", 8, 2, 9, 1))
sketch8.addConstraint(Sketcher.Constraint("Coincident", 9, 2, 10, 1))
sketch8.addConstraint(Sketcher.Constraint("Coincident", 10, 2, 11, 1))
sketch8.addConstraint(Sketcher.Constraint("Coincident", 11, 2, 12, 1))
sketch8.addConstraint(Sketcher.Constraint("Coincident", 12, 2, 13, 1))
sketch8.addConstraint(Sketcher.Constraint("Coincident", 13, 2, 14, 1))
sketch8.addConstraint(Sketcher.Constraint("Coincident", 14, 2, 15, 1))
sketch8.addConstraint(Sketcher.Constraint("Coincident", 15, 2, 16, 1))
sketch8.addConstraint(Sketcher.Constraint("Coincident", 16, 2, 17, 1))
sketch8.addConstraint(Sketcher.Constraint("Coincident", 17, 2, 18, 1))
sketch8.addConstraint(Sketcher.Constraint("Coincident", 18, 2, 19, 1))
sketch8.addConstraint(Sketcher.Constraint("Coincident", 19, 2, 20, 1))
sketch8.addConstraint(Sketcher.Constraint("Coincident", 20, 2, 21, 1))
sketch8.addConstraint(Sketcher.Constraint("Coincident", 21, 2, 22, 1))
sketch8.addConstraint(Sketcher.Constraint("Coincident", 22, 2, 23, 1))
sketch8.addConstraint(Sketcher.Constraint("Coincident", 23, 2, 24, 1))
sketch8.addConstraint(Sketcher.Constraint("Coincident", 24, 2, 25, 1))
sketch8.addConstraint(Sketcher.Constraint("Coincident", 25, 2, 26, 1))
sketch8.addConstraint(Sketcher.Constraint("Coincident", 26, 2, 27, 1))
sketch8.addConstraint(Sketcher.Constraint("Coincident", 27, 2, 28, 1))
sketch8.addConstraint(Sketcher.Constraint("Coincident", 28, 2, 29, 1))
sketch8.addConstraint(Sketcher.Constraint("Coincident", 29, 2, 30, 1))
sketch8.addConstraint(Sketcher.Constraint("Coincident", 30, 2, 31, 1))
sketch8.addConstraint(Sketcher.Constraint("Coincident", 31, 2, 32, 1))
sketch8.addConstraint(Sketcher.Constraint("Coincident", 32, 2, 33, 1))
sketch8.addConstraint(Sketcher.Constraint("Coincident", 33, 2, 34, 1))
sketch8.addConstraint(Sketcher.Constraint("Coincident", 34, 2, 35, 1))
sketch8.addConstraint(Sketcher.Constraint("Coincident", 35, 2, 36, 1))
sketch8.addConstraint(Sketcher.Constraint("Coincident", 36, 2, 37, 1))
sketch8.addConstraint(Sketcher.Constraint("Coincident", 37, 2, 38, 1))
sketch8.addConstraint(Sketcher.Constraint("Coincident", 38, 2, 39, 1))
sketch8.addConstraint(Sketcher.Constraint("Coincident", 39, 2, 40, 1))
sketch8.addConstraint(Sketcher.Constraint("Coincident", 40, 2, 41, 1))
sketch8.addConstraint(Sketcher.Constraint("Coincident", 41, 2, 42, 1))
sketch8.addConstraint(Sketcher.Constraint("Coincident", 42, 2, 43, 1))
sketch8.addConstraint(Sketcher.Constraint("Coincident", 43, 2, 44, 1))
sketch8.addConstraint(Sketcher.Constraint("Coincident", 44, 2, 45, 1))
sketch8.addConstraint(Sketcher.Constraint("Coincident", 45, 2, 46, 1))
sketch8.addConstraint(Sketcher.Constraint("Coincident", 46, 2, 47, 1))
sketch8.addConstraint(Sketcher.Constraint("Coincident", 47, 2, 0, 1))
sketch8.addConstraint(Sketcher.Constraint("Vertical", 0))
sketch8.addConstraint(Sketcher.Constraint("Horizontal", 1))
sketch8.addConstraint(Sketcher.Constraint("Vertical", 2))
sketch8.addConstraint(Sketcher.Constraint("Horizontal", 3))
sketch8.addConstraint(Sketcher.Constraint("Vertical", 4))
sketch8.addConstraint(Sketcher.Constraint("Horizontal", 5))
sketch8.addConstraint(Sketcher.Constraint("Vertical", 6))
sketch8.addConstraint(Sketcher.Constraint("Horizontal", 7))
sketch8.addConstraint(Sketcher.Constraint("Vertical", 8))
sketch8.addConstraint(Sketcher.Constraint("Horizontal", 9))
sketch8.addConstraint(Sketcher.Constraint("Vertical", 10))
sketch8.addConstraint(Sketcher.Constraint("Horizontal", 11))
sketch8.addConstraint(Sketcher.Constraint("Vertical", 12))
sketch8.addConstraint(Sketcher.Constraint("Horizontal", 13))
sketch8.addConstraint(Sketcher.Constraint("Vertical", 14))
sketch8.addConstraint(Sketcher.Constraint("Horizontal", 15))
sketch8.addConstraint(Sketcher.Constraint("Vertical", 16))
sketch8.addConstraint(Sketcher.Constraint("Horizontal", 17))
sketch8.addConstraint(Sketcher.Constraint("Vertical", 18))
sketch8.addConstraint(Sketcher.Constraint("Horizontal", 19))
sketch8.addConstraint(Sketcher.Constraint("Vertical", 20))
sketch8.addConstraint(Sketcher.Constraint("Horizontal", 21))
sketch8.addConstraint(Sketcher.Constraint("Vertical", 22))
sketch8.addConstraint(Sketcher.Constraint("Horizontal", 23))
sketch8.addConstraint(Sketcher.Constraint("Vertical", 24))
sketch8.addConstraint(Sketcher.Constraint("Horizontal", 25))
sketch8.addConstraint(Sketcher.Constraint("Vertical", 26))
sketch8.addConstraint(Sketcher.Constraint("Horizontal", 27))
sketch8.addConstraint(Sketcher.Constraint("Vertical", 28))
sketch8.addConstraint(Sketcher.Constraint("Horizontal", 29))
sketch8.addConstraint(Sketcher.Constraint("Vertical", 30))
sketch8.addConstraint(Sketcher.Constraint("Horizontal", 31))
sketch8.addConstraint(Sketcher.Constraint("Vertical", 32))
sketch8.addConstraint(Sketcher.Constraint("Horizontal", 33))
sketch8.addConstraint(Sketcher.Constraint("Vertical", 34))
sketch8.addConstraint(Sketcher.Constraint("Horizontal", 35))
sketch8.addConstraint(Sketcher.Constraint("Vertical", 36))
sketch8.addConstraint(Sketcher.Constraint("Horizontal", 37))
sketch8.addConstraint(Sketcher.Constraint("Vertical", 38))
sketch8.addConstraint(Sketcher.Constraint("Horizontal", 39))
sketch8.addConstraint(Sketcher.Constraint("Vertical", 40))
sketch8.addConstraint(Sketcher.Constraint("Horizontal", 41))
sketch8.addConstraint(Sketcher.Constraint("Vertical", 42))
sketch8.addConstraint(Sketcher.Constraint("Horizontal", 43))
sketch8.addConstraint(Sketcher.Constraint("Vertical", 44))
sketch8.addConstraint(Sketcher.Constraint("Horizontal", 45))
sketch8.addConstraint(Sketcher.Constraint("Vertical", 46))
sketch8.addConstraint(Sketcher.Constraint("Horizontal", 47))
sketch8.addConstraint(Sketcher.Constraint("Symmetric", 12, 2, 22, 2, -1, 1))
sketch8.addConstraint(Sketcher.Constraint("Symmetric", 14, 2, 24, 2, -1, 1))
sketch8.addConstraint(Sketcher.Constraint("Symmetric", 16, 2, 26, 2, -1, 1))
sketch8.addConstraint(Sketcher.Constraint("Symmetric", 18, 2, 28, 2, -1, 1))
sketch8.addConstraint(Sketcher.Constraint("Symmetric", 19, 2, 22, 2, -2))
sketch8.addConstraint(Sketcher.Constraint("Symmetric", 17, 2, 24, 2, -2))
sketch8.addConstraint(Sketcher.Constraint("Symmetric", 11, 2, 30, 2, -2))
sketch8.addConstraint(Sketcher.Constraint("Symmetric", 9, 2, 32, 2, -2))
sketch8.addConstraint(Sketcher.Constraint("Symmetric", 7, 2, 34, 2, -2))
sketch8.addConstraint(Sketcher.Constraint("Symmetric", 5, 2, 36, 2, -2))
sketch8.addConstraint(Sketcher.Constraint("Symmetric", 3, 2, 38, 2, -2))
sketch8.addConstraint(Sketcher.Constraint("Symmetric", 1, 2, 40, 2, -2))
sketch8.addConstraint(Sketcher.Constraint("Symmetric", 43, 2, 46, 2, -2))
sketch8.addConstraint(Sketcher.Constraint("Horizontal", 3, 2, 6, 2))
sketch8.addConstraint(Sketcher.Constraint("Horizontal", 1, 2, 8, 2))
sketch8.addConstraint(Sketcher.Constraint("Horizontal", 7, 2, 10, 2))
sketch8.addConstraint(Sketcher.Constraint("Horizontal", 39, 2, 42, 2))
sketch8.addConstraint(Sketcher.Constraint("Horizontal", 37, 2, 44, 2))
sketch8.addConstraint(Sketcher.Constraint("Equal", 3, 7))
sketch8.addConstraint(Sketcher.Constraint("Equal", 1, 9))
sketch8.addConstraint(Sketcher.Constraint("Equal", 7, 11))
sketch8.addConstraint(Sketcher.Constraint("Equal", 5, 15))
sketch8.addConstraint(Sketcher.Constraint("Equal", 33, 41))
sketch8.addConstraint(Sketcher.Constraint("Equal", 39, 43))
sketch8.addConstraint(Sketcher.Constraint("Equal", 37, 45))
sketch8.addConstraint(Sketcher.Constraint("Equal", 41, 0))
sketch8.addConstraint(Sketcher.Constraint("Equal", 29, 16))
sketch8.addConstraint(Sketcher.Constraint("DistanceX", 1, 2, 1, 1, Q("0.3 mm")))
sketch8.addConstraint(Sketcher.Constraint("DistanceX", 0, 2, 33, 2, Q("1 mm")))
sketch8.addConstraint(Sketcher.Constraint("DistanceX", 3, 2, 3, 1, Q("0.05 mm")))
sketch8.addConstraint(Sketcher.Constraint("DistanceY", 4, 1, 4, 2, Q("0.13 mm")))
sketch8.addConstraint(Sketcher.Constraint("DistanceY", 0, 2, -1, 1, Q("1.6 mm")))
sketch8.addConstraint(Sketcher.Constraint("DistanceX", 13, 2, -1, 1, Q("1.3 mm")))
sketch8.addConstraint(Sketcher.Constraint("DistanceY", 12, 1, 12, 2, Q("1.135 mm")))
sketch8.addConstraint(Sketcher.Constraint("DistanceY", 20, 1, 20, 2, Q("0.415 mm")))
sketch8.setExpression("Constraints[123]", "Params.sketch8_width")
sketch8.setExpression("Constraints[125]", "Params.sketch8_width2")
sketch8.setExpression("Constraints[126]", "Params.sketch8_height")
pad6 = doc.addObject("PartDesign::Pad", "Pad005")
body6.addObject(pad6)
pad6.Profile = sketch8
pad6.setExpression("Length", "Params.pad6_length")
pad6.Reversed = True
body7 = doc.addObject("PartDesign::Body", "Body006")

# Sketch on XZ plane
sketch9 = doc.addObject("Sketcher::SketchObject", "Sketch008")
body7.addObject(sketch9)
sketch9.AttachmentSupport = (doc.getObject("XZ_Plane006"), [""])
sketch9.MapMode = "FlatFace"
sketch9.AttachmentOffset = App.Placement(Vector(0, 0, -0.8), App.Rotation())
sketch9.addGeometry(Part.Circle(Vector(-0.97, 0.96, 0), Vector(0, 0, 1), 0.12), False)
sketch9.addConstraint(Sketcher.Constraint("Diameter", 0, Q("0.25 mm")))
sketch9.addConstraint(Sketcher.Constraint("DistanceY", -1, 1, 0, 3, Q("0.96 mm")))
sketch9.addConstraint(Sketcher.Constraint("DistanceX", 0, 3, -1, 1, Q("0.975 mm")))
sketch9.setExpression("Constraints[0]", "Params.sketch9_diameter")
pad7 = doc.addObject("PartDesign::Pad", "Pad006")
body7.addObject(pad7)
pad7.Profile = sketch9
pad7.setExpression("Length", "Params.pad7_length")

doc.recompute()
